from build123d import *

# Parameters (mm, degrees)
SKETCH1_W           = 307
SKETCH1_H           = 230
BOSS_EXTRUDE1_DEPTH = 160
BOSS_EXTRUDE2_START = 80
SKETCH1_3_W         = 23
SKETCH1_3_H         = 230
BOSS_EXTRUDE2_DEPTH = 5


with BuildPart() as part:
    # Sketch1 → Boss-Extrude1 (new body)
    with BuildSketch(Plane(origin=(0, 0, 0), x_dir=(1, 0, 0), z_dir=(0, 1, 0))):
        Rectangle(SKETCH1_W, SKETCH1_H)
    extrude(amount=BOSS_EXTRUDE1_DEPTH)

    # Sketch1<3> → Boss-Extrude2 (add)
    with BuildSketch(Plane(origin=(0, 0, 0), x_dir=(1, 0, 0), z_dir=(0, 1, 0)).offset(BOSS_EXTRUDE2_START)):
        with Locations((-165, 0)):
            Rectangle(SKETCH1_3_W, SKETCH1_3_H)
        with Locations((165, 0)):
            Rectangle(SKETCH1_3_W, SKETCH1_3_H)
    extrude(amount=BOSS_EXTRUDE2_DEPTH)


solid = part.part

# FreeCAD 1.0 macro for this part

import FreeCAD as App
import Part
import Sketcher

doc = App.newDocument("Part")
body = doc.addObject("PartDesign::Body", "Body")

sketch1 = body.newObject("Sketcher::SketchObject", "Sketch")
sketch1.AttachmentSupport = (doc.getObject("XZ_Plane"), [""])
sketch1.MapMode = "FlatFace"
sketch1.addGeometry(Part.LineSegment(App.Vector(-153.5, -115, 0), App.Vector(-153.5, 115, 0)), False)
sketch1.addGeometry(Part.LineSegment(App.Vector(-153.5, 115, 0), App.Vector(153.5, 115, 0)), False)
sketch1.addGeometry(Part.LineSegment(App.Vector(153.5, 115, 0), App.Vector(153.5, -115, 0)), False)
sketch1.addGeometry(Part.LineSegment(App.Vector(153.5, -115, 0), App.Vector(-153.5, -115, 0)), False)
sketch1.addConstraint(Sketcher.Constraint("Coincident", 0, 2, 1, 1))
sketch1.addConstraint(Sketcher.Constraint("Coincident", 1, 2, 2, 1))
sketch1.addConstraint(Sketcher.Constraint("Coincident", 2, 2, 3, 1))
sketch1.addConstraint(Sketcher.Constraint("Coincident", 3, 2, 0, 1))
sketch1.addConstraint(Sketcher.Constraint("Vertical", 0))
sketch1.addConstraint(Sketcher.Constraint("Horizontal", 1))
sketch1.addConstraint(Sketcher.Constraint("Vertical", 2))
sketch1.addConstraint(Sketcher.Constraint("Horizontal", 3))
sketch1.addConstraint(Sketcher.Constraint("Symmetric", 0, 2, 2, 2, -1, 1))
sketch1.addConstraint(Sketcher.Constraint("DistanceX", 1, 1, 1, 2, 307.0))
sketch1.addConstraint(Sketcher.Constraint("DistanceY", 0, 1, 0, 2, 230.0))
pad1 = body.newObject("PartDesign::Pad", "Pad")
pad1.Profile = sketch1
pad1.Length = 160
pad1.Reversed = True

sketch2 = body.newObject("Sketcher::SketchObject", "Sketch001")
sketch2.AttachmentSupport = (doc.getObject("XZ_Plane"), [""])
sketch2.MapMode = "FlatFace"
sketch2.AttachmentOffset = App.Placement(App.Vector(0, 0, -80), App.Rotation())
sketch2.addGeometry(Part.LineSegment(App.Vector(-176.5, -115, 0), App.Vector(-176.5, 115, 0)), False)
sketch2.addGeometry(Part.LineSegment(App.Vector(-176.5, 115, 0), App.Vector(-153.5, 115, 0)), False)
sketch2.addGeometry(Part.LineSegment(App.Vector(-153.5, 115, 0), App.Vector(-153.5, -115, 0)), False)
sketch2.addGeometry(Part.LineSegment(App.Vector(-153.5, -115, 0), App.Vector(-176.5, -115, 0)), False)
sketch2.addGeometry(Part.LineSegment(App.Vector(153.5, -115, 0), App.Vector(153.5, 115, 0)), False)
sketch2.addGeometry(Part.LineSegment(App.Vector(153.5, 115, 0), App.Vector(176.5, 115, 0)), False)
sketch2.addGeometry(Part.LineSegment(App.Vector(176.5, 115, 0), App.Vector(176.5, -115, 0)), False)
sketch2.addGeometry(Part.LineSegment(App.Vector(176.5, -115, 0), App.Vector(153.5, -115, 0)), False)
sketch2.addConstraint(Sketcher.Constraint("Coincident", 0, 2, 1, 1))
sketch2.addConstraint(Sketcher.Constraint("Coincident", 1, 2, 2, 1))
sketch2.addConstraint(Sketcher.Constraint("Coincident", 2, 2, 3, 1))
sketch2.addConstraint(Sketcher.Constraint("Coincident", 3, 2, 0, 1))
sketch2.addConstraint(Sketcher.Constraint("Coincident", 4, 2, 5, 1))
sketch2.addConstraint(Sketcher.Constraint("Coincident", 5, 2, 6, 1))
sketch2.addConstraint(Sketcher.Constraint("Coincident", 6, 2, 7, 1))
sketch2.addConstraint(Sketcher.Constraint("Coincident", 7, 2, 4, 1))
sketch2.addConstraint(Sketcher.Constraint("Vertical", 0))
sketch2.addConstraint(Sketcher.Constraint("Horizontal", 1))
sketch2.addConstraint(Sketcher.Constraint("Vertical", 2))
sketch2.addConstraint(Sketcher.Constraint("Horizontal", 3))
sketch2.addConstraint(Sketcher.Constraint("Vertical", 4))
sketch2.addConstraint(Sketcher.Constraint("Horizontal", 5))
sketch2.addConstraint(Sketcher.Constraint("Vertical", 6))
sketch2.addConstraint(Sketcher.Constraint("Horizontal", 7))
sketch2.addConstraint(Sketcher.Constraint("Symmetric", 2, 2, 4, 2, -1, 1))
sketch2.addConstraint(Sketcher.Constraint("Symmetric", 0, 2, 6, 2, -1, 1))
sketch2.addConstraint(Sketcher.Constraint("Horizontal", 1, 2, 4, 2))
sketch2.addConstraint(Sketcher.Constraint("DistanceX", 1, 1, 1, 2, 23.0))
sketch2.addConstraint(Sketcher.Constraint("DistanceY", 0, 1, 0, 2, 230.0))
sketch2.addConstraint(Sketcher.Constraint("DistanceX", 1, 2, 4, 2, 307.0))
pad2 = body.newObject("PartDesign::Pad", "Pad001")
pad2.Profile = sketch2
pad2.Length = 5
pad2.Reversed = True

doc.recompute()
